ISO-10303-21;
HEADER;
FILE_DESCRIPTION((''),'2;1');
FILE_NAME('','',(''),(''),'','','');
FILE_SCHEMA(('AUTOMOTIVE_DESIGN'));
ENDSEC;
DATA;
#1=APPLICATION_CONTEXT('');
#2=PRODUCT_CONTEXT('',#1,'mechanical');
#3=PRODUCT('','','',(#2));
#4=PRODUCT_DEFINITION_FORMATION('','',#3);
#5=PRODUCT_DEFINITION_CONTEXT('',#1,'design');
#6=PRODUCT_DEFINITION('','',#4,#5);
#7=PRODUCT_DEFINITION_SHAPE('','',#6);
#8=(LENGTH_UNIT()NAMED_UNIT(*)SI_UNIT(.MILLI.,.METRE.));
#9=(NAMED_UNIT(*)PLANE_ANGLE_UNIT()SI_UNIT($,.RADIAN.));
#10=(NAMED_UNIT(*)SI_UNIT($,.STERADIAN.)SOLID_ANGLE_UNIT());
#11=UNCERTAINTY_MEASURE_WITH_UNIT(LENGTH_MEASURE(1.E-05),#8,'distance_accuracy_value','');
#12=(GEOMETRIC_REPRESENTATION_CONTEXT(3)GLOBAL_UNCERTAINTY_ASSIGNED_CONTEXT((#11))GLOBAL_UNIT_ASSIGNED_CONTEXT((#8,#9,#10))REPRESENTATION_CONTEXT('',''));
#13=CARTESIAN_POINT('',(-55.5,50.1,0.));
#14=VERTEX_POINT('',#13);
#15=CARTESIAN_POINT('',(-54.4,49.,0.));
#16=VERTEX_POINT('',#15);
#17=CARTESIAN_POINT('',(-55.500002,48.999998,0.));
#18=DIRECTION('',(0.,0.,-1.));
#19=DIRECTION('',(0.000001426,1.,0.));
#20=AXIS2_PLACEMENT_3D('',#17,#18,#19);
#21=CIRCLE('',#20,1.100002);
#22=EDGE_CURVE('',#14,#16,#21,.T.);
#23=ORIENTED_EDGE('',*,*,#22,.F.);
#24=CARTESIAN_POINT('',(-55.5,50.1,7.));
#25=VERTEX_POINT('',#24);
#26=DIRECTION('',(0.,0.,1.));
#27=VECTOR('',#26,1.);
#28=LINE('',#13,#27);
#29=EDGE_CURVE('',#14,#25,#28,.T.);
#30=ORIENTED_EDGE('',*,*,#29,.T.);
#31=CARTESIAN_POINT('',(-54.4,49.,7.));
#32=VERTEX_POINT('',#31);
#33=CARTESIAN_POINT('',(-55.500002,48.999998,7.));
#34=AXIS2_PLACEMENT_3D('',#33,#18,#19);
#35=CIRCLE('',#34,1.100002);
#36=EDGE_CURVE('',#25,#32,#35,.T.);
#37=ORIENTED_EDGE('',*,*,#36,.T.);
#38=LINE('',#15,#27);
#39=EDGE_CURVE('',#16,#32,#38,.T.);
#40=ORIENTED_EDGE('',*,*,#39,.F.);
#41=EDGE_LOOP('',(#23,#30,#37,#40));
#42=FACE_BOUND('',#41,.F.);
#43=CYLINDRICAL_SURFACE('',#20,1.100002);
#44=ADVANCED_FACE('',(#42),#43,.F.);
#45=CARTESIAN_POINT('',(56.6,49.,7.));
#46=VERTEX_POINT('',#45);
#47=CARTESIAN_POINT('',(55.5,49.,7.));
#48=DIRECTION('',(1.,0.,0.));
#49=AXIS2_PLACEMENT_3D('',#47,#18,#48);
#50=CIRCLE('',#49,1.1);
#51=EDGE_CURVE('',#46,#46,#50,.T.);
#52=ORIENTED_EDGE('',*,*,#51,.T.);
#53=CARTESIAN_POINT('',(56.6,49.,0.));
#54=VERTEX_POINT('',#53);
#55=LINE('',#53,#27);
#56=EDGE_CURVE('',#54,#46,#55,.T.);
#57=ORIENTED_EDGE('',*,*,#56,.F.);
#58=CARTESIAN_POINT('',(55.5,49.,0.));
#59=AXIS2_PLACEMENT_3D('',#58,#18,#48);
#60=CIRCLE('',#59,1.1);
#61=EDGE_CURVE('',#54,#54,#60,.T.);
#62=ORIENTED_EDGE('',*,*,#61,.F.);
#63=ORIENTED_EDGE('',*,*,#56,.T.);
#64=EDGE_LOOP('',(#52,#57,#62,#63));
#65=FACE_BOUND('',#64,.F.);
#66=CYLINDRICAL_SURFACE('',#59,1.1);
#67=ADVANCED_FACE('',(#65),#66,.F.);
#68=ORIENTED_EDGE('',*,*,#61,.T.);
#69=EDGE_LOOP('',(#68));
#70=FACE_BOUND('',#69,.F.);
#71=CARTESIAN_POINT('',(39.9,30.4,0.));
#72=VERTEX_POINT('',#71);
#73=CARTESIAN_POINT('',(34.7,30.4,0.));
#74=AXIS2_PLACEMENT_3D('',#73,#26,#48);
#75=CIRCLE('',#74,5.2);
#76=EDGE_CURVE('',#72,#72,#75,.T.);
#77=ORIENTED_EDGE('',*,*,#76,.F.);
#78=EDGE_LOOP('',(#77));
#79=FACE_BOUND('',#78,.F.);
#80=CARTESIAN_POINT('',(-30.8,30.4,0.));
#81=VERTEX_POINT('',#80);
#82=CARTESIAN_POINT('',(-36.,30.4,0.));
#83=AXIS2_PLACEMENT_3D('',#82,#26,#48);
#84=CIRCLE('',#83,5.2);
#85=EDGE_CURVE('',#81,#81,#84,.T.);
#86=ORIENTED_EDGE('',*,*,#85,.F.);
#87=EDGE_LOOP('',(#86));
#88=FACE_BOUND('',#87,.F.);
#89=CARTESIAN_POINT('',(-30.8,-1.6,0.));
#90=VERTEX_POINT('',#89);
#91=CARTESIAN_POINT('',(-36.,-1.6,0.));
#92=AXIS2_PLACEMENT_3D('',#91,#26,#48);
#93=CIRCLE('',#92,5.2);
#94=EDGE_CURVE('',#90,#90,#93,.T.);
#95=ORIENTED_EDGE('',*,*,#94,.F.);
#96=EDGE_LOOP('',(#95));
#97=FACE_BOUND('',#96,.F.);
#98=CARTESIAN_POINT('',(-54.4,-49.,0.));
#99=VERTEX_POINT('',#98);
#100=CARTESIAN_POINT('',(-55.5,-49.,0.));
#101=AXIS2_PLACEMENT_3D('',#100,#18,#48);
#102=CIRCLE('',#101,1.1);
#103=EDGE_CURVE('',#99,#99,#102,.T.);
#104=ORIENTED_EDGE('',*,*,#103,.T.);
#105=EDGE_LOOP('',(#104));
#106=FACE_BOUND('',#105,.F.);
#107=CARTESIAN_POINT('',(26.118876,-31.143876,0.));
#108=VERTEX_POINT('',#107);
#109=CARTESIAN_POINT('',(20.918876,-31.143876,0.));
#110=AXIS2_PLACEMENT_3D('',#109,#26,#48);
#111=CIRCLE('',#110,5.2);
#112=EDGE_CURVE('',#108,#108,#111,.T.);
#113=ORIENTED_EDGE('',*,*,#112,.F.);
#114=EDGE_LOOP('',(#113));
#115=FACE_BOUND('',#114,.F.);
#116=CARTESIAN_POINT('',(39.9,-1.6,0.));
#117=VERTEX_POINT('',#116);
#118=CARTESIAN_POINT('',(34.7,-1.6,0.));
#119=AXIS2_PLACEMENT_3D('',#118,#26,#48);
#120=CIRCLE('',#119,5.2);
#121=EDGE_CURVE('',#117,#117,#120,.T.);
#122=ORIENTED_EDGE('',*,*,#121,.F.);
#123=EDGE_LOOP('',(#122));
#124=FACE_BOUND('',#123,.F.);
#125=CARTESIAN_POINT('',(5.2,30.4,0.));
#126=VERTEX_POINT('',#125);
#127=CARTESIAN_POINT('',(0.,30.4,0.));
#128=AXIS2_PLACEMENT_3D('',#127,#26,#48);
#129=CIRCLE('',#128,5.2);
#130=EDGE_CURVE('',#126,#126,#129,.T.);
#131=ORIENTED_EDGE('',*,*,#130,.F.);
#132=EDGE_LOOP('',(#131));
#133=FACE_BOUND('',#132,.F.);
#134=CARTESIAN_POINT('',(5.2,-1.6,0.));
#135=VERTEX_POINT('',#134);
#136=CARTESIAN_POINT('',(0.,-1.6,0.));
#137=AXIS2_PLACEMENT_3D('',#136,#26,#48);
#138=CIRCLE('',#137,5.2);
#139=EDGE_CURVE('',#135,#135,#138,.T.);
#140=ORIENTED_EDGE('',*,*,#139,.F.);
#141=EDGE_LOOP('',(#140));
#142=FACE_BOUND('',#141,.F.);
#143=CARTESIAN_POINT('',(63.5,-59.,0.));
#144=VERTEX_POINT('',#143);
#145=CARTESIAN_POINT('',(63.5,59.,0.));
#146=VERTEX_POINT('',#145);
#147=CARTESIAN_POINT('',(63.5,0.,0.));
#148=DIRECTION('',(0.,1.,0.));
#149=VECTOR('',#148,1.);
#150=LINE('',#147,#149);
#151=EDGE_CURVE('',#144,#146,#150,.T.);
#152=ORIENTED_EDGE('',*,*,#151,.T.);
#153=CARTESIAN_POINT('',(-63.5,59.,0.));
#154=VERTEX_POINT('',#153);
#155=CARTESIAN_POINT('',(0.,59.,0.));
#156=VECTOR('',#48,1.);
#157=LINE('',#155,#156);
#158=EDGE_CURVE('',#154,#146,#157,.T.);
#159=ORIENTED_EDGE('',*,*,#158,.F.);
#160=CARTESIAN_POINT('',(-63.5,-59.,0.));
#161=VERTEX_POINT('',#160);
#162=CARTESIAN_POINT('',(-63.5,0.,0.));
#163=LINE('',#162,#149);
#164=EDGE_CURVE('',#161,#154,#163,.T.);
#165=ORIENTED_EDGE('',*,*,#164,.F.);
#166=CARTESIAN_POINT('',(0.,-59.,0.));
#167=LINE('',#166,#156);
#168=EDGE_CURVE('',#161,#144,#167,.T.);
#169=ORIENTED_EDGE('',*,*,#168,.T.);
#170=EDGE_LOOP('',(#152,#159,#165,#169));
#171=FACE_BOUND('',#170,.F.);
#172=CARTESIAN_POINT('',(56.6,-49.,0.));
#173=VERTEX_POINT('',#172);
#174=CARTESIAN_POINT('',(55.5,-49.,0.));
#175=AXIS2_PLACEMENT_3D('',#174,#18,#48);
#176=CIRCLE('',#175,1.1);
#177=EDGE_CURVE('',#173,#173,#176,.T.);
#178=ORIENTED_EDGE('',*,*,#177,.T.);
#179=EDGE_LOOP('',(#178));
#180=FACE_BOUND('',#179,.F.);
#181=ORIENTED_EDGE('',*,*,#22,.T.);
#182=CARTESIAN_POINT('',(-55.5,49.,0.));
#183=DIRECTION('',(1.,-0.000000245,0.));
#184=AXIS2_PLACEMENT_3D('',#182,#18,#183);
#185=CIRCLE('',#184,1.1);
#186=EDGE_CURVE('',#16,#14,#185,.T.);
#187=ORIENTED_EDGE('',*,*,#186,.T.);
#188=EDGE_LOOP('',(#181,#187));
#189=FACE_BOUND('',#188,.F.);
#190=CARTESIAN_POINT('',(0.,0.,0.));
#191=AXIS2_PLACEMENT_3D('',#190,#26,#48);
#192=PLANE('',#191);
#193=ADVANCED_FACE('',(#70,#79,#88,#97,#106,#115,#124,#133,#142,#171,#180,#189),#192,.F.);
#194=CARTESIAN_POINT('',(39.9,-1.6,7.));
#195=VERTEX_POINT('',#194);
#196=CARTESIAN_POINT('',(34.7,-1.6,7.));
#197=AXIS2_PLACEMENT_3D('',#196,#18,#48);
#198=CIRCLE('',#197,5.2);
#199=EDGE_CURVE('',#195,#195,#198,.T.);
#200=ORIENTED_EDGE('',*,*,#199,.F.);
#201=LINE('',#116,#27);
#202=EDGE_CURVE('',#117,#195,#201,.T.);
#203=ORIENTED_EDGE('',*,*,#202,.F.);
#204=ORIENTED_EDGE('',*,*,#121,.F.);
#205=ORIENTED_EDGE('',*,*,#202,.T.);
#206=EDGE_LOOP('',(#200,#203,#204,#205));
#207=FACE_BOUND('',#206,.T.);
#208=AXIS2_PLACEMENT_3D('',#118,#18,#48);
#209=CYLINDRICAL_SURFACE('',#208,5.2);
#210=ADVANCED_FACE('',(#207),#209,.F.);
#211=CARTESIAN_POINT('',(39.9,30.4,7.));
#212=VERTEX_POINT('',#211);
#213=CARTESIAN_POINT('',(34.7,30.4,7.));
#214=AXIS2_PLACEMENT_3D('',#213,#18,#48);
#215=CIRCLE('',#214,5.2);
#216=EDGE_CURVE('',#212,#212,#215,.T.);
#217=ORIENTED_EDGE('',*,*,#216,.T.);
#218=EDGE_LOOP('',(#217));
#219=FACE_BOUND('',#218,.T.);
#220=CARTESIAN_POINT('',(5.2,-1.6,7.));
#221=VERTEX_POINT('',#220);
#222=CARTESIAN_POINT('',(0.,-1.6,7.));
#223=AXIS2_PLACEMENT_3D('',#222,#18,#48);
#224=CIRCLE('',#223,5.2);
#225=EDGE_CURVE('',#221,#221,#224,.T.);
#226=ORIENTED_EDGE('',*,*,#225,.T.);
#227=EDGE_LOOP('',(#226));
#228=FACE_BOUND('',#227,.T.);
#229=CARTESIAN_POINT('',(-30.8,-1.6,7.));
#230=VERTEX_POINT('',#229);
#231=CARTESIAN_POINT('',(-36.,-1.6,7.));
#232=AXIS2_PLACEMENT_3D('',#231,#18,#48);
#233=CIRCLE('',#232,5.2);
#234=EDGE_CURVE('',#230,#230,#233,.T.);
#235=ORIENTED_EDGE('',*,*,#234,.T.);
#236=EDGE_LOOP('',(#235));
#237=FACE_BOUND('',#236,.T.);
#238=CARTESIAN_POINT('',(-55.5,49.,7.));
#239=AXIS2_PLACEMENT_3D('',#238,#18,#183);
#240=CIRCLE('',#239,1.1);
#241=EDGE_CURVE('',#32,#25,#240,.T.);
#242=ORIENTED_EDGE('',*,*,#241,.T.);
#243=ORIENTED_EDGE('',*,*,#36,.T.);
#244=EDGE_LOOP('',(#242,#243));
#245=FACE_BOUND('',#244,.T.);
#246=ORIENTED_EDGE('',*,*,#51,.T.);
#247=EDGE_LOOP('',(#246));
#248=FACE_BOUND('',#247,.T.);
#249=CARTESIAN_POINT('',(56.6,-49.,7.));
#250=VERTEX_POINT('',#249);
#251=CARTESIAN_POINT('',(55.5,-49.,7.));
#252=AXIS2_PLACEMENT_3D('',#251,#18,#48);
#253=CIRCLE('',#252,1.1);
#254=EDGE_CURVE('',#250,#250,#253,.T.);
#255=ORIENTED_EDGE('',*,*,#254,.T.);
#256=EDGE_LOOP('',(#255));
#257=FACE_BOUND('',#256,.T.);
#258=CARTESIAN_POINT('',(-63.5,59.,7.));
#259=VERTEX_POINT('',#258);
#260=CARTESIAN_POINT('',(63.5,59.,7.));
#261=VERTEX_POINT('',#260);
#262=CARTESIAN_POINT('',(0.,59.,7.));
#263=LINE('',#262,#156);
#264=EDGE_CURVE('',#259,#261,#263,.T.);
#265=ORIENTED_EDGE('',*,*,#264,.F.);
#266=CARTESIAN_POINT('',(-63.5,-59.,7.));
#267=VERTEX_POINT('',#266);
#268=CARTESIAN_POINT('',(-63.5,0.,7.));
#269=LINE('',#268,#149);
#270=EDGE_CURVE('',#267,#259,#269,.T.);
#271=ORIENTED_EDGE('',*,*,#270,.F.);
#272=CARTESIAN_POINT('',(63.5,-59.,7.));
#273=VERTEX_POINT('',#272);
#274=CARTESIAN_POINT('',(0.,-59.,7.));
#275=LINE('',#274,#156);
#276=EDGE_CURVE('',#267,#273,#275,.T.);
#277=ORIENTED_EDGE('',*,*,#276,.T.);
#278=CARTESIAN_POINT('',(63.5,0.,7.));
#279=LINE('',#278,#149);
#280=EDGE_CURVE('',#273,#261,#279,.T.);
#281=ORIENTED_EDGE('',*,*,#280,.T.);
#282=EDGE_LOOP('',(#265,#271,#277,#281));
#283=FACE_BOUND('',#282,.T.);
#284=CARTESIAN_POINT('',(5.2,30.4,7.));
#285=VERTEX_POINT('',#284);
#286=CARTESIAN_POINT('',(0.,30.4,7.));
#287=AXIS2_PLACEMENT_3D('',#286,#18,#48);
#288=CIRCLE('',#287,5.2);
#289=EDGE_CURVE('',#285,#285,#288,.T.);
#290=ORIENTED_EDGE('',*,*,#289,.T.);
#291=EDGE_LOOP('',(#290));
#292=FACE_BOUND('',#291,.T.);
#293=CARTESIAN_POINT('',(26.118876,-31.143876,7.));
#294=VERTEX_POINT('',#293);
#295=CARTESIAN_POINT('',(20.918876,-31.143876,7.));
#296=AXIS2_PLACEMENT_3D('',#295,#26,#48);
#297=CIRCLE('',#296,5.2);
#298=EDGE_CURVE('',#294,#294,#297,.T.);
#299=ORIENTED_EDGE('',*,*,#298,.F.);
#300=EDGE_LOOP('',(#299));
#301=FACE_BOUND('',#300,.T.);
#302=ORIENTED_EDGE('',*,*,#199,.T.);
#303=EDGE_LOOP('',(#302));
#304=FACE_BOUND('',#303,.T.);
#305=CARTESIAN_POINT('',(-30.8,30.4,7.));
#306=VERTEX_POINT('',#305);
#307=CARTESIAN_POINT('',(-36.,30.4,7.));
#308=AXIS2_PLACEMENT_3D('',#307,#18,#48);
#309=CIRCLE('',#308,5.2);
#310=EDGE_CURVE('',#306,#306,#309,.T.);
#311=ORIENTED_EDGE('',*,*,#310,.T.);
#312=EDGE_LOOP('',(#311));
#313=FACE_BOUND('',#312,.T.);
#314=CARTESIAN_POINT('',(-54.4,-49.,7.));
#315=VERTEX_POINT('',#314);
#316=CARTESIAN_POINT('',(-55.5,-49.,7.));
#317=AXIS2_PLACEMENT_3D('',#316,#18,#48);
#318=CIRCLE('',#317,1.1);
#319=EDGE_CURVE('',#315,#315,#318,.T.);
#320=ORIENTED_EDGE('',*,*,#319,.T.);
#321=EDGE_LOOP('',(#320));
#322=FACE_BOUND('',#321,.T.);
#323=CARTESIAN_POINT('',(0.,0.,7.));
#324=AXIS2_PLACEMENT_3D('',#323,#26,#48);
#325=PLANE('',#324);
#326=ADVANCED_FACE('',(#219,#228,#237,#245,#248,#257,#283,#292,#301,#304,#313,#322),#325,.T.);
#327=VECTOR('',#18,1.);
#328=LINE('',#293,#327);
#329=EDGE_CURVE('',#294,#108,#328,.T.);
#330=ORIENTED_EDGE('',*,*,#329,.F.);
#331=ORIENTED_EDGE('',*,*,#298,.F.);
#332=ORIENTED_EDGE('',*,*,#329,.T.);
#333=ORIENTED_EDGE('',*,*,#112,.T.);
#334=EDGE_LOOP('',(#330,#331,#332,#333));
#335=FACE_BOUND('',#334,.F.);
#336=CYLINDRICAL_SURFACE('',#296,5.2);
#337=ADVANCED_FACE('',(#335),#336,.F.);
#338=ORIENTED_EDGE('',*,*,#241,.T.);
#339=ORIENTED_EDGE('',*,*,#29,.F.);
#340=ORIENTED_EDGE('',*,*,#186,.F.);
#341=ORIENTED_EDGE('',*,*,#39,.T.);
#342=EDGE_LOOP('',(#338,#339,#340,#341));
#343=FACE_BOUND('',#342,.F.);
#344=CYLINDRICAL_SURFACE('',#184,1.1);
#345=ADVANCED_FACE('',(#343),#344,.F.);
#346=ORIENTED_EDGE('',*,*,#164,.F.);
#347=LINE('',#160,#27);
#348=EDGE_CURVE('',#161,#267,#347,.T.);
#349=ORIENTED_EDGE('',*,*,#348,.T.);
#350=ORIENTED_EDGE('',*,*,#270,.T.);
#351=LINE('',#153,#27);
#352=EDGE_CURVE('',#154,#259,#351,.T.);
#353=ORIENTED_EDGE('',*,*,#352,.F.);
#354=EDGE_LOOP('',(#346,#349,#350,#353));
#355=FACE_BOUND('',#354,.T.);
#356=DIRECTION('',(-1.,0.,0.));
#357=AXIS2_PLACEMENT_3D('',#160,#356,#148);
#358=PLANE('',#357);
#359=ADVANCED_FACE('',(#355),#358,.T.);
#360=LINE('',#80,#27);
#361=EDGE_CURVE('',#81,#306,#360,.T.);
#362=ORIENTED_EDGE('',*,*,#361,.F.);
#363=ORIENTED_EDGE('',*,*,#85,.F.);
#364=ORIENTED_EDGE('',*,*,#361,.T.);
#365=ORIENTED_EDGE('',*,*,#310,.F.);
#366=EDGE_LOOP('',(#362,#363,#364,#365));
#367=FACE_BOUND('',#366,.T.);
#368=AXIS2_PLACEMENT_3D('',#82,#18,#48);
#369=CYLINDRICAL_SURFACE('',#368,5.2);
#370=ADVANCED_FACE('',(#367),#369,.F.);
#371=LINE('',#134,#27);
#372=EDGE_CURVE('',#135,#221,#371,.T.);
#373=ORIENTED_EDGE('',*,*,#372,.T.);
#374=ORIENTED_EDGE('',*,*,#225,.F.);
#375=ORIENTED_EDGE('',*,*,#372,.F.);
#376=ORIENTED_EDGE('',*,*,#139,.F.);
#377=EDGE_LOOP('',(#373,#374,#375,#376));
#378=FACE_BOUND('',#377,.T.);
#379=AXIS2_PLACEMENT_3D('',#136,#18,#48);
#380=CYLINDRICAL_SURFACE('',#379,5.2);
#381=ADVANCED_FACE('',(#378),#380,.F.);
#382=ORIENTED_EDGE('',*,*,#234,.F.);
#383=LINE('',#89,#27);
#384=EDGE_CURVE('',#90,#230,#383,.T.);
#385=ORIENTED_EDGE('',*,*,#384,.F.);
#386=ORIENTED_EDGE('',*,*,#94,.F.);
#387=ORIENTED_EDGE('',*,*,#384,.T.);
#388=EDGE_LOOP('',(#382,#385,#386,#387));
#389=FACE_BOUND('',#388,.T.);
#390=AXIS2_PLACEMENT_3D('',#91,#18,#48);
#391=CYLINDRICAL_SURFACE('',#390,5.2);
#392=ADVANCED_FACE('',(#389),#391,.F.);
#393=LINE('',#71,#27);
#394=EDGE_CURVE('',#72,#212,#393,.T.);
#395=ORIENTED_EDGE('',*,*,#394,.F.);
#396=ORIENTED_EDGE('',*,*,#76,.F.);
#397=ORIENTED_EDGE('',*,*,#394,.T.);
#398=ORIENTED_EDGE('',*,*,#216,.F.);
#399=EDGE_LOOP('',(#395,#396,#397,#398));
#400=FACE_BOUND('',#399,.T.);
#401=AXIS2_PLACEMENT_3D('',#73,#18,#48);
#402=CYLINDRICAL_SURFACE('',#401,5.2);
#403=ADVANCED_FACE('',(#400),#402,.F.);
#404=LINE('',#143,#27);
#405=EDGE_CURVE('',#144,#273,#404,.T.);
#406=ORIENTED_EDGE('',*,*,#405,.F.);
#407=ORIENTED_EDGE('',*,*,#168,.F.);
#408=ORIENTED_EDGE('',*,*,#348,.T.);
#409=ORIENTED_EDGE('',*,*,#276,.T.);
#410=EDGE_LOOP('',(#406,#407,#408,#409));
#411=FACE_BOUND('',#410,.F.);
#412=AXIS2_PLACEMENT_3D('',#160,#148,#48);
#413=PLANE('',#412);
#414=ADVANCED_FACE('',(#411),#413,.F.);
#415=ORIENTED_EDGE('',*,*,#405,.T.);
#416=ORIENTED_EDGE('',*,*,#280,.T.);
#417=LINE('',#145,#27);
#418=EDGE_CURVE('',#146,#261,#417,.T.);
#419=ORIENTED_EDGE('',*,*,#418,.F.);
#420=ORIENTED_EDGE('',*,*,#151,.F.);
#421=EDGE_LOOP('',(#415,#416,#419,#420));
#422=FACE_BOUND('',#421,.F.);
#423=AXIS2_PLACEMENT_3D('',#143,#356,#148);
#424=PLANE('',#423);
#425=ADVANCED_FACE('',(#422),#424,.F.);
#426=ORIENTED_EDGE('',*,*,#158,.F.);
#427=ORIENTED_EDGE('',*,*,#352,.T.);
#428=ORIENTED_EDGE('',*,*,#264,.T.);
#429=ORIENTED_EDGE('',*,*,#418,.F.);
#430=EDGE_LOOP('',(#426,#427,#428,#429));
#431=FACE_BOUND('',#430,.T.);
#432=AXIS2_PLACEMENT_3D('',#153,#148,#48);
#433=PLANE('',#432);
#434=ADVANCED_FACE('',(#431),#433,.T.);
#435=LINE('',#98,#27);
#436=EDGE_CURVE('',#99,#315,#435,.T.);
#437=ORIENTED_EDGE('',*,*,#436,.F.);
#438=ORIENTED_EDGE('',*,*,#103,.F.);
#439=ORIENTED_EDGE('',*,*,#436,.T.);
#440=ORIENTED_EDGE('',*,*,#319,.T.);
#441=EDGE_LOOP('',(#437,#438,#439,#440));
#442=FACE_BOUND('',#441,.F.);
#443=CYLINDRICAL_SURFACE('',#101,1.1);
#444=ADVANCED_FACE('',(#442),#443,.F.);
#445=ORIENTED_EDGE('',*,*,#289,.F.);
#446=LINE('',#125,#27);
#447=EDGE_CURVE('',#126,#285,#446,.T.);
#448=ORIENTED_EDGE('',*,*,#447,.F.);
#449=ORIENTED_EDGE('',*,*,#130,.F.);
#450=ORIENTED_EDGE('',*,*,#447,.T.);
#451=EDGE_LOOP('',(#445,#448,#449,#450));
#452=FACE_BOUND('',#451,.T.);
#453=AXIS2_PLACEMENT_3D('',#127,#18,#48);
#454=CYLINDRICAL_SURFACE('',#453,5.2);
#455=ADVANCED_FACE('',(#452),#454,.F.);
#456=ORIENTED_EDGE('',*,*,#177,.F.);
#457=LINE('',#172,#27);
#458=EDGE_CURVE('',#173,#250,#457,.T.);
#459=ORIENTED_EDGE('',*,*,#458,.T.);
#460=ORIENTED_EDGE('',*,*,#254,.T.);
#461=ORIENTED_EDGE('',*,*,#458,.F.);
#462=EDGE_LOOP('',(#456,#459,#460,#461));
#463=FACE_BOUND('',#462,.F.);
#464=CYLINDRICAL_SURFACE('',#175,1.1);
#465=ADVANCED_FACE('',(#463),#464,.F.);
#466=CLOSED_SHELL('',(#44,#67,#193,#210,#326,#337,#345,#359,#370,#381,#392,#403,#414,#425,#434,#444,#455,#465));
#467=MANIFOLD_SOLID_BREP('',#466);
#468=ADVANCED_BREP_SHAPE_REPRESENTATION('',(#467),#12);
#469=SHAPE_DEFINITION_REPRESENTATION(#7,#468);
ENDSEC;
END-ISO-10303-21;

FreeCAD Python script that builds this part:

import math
import FreeCAD as App
import Part
import Sketcher
from FreeCAD import Vector
Q = App.Units.Quantity


def add_polygon(sketch, points):
    """Adds a closed chain of lines whose ends are joined by coincident constraints."""
    first, n = sketch.GeometryCount, len(points)
    for a, b in zip(points, points[1:] + points[:1]):
        sketch.addGeometry(Part.LineSegment(App.Vector(*a, 0), App.Vector(*b, 0)), False)
    for i in range(n):
        sketch.addConstraint(Sketcher.Constraint("Coincident", first + i, 2, first + (i + 1) % n, 1))

doc = App.newDocument("Part")
body = doc.addObject("PartDesign::Body", "Body")

sketch1 = body.newObject("Sketcher::SketchObject", "Sketch")
sketch1.AttachmentSupport = (doc.getObject("XY_Plane"), [""])
sketch1.MapMode = "FlatFace"
add_polygon(sketch1, [(-64, 59), (-64, -59), (64, -59), (64, 59)])
sketch1.addConstraint([
    Sketcher.Constraint("Vertical", 0),
    Sketcher.Constraint("Horizontal", 1),
    Sketcher.Constraint("Vertical", 2),
    Sketcher.Constraint("Horizontal", 3),
    Sketcher.Constraint("Symmetric", 0, 2, 2, 2, -1, 1),
    Sketcher.Constraint("DistanceX", 1, 1, 1, 2, Q("127 mm")),
    Sketcher.Constraint("DistanceY", 0, 2, 0, 1, Q("118 mm")),
])
pad1 = body.newObject("PartDesign::Pad", "Pad")
pad1.Profile = sketch1
pad1.Length = 7

sketch2 = body.newObject("Sketcher::SketchObject", "Sketch001")
sketch2.AttachmentSupport = (doc.getObject("XY_Plane"), [""])
sketch2.MapMode = "FlatFace"
sketch2.addGeometry([
    Part.ArcOfCircle(Part.Circle(Vector(-55.5, 49, 0), Vector(0, 0, 1), 1.1), math.radians(0), math.radians(90)),
    Part.ArcOfCircle(Part.Circle(Vector(-55.5, 49, 0), Vector(0, 0, 1), 1.1), math.radians(90), math.radians(360)),
    Part.Circle(Vector(55.5, 49, 0), Vector(0, 0, 1), 1.1),
    Part.Circle(Vector(-55.5, -49, 0), Vector(0, 0, 1), 1.1),
    Part.Circle(Vector(55.5, -49, 0), Vector(0, 0, 1), 1.1),
], False)
sketch2.addConstraint([
    Sketcher.Constraint("Tangent", 0, 1, 1, 2),
    Sketcher.Constraint("Coincident", 1, 1, 0, 2),
    Sketcher.Constraint("Equal", 1, 2),
    Sketcher.Constraint("Equal", 2, 3),
    Sketcher.Constraint("Equal", 3, 4),
    Sketcher.Constraint("Symmetric", 2, 3, 3, 3, -1, 1),
    Sketcher.Constraint("Symmetric", 0, 3, 4, 3, -1, 1),
    Sketcher.Constraint("Symmetric", 0, 3, 2, 3, -2),
    Sketcher.Constraint("Horizontal", 2, 3, 0, 1),
    Sketcher.Constraint("Vertical", 3, 3, 1, 1),
    Sketcher.Constraint("Diameter", 2, Q("2.2 mm")),
    Sketcher.Constraint("DistanceY", -1, 1, 0, 3, Q("48.999998 mm")),
    Sketcher.Constraint("DistanceX", 1, 3, 2, 3, Q("111 mm")),
])
pocket1 = body.newObject("PartDesign::Pocket", "Pocket")
pocket1.Profile = sketch2
pocket1.Length = 25
pocket1.Reversed = True

sketch3 = body.newObject("Sketcher::SketchObject", "Sketch002")
sketch3.AttachmentSupport = (doc.getObject("XY_Plane"), [""])
sketch3.MapMode = "FlatFace"
sketch3.addGeometry([
    Part.Circle(Vector(-36, 30, 0), Vector(0, 0, 1), 5),
    Part.Circle(Vector(-36, -2, 0), Vector(0, 0, 1), 5),
    Part.Circle(Vector(0, -2, 0), Vector(0, 0, 1), 5),
    Part.Circle(Vector(35, -2, 0), Vector(0, 0, 1), 5),
    Part.Circle(Vector(35, 30, 0), Vector(0, 0, 1), 5),
    Part.Circle(Vector(0, 30, 0), Vector(0, 0, 1), 5),
], False)
sketch3.addConstraint([
    Sketcher.Constraint("Equal", 0, 1),
    Sketcher.Constraint("Equal", 1, 2),
    Sketcher.Constraint("Equal", 2, 3),
    Sketcher.Constraint("Equal", 3, 4),
    Sketcher.Constraint("Equal", 4, 5),
    Sketcher.Constraint("PointOnObject", 2, 3, -2),
    Sketcher.Constraint("PointOnObject", 5, 3, -2),
    Sketcher.Constraint("Horizontal", 1, 3, 2, 3),
    Sketcher.Constraint("Horizontal", 2, 3, 3, 3),
    Sketcher.Constraint("Horizontal", 0, 3, 4, 3),
    Sketcher.Constraint("Horizontal", 4, 3, 5, 3),
    Sketcher.Constraint("Vertical", 0, 3, 1, 3),
    Sketcher.Constraint("Vertical", 3, 3, 4, 3),
    Sketcher.Constraint("Diameter", 0, Q("10.4 mm")),
    Sketcher.Constraint("DistanceX", 0, 3, -1, 1, Q("36 mm")),
    Sketcher.Constraint("DistanceY", 1, 3, 0, 3, Q("32 mm")),
    Sketcher.Constraint("DistanceY", -1, 1, 0, 3, Q("30.4 mm")),
    Sketcher.Constraint("DistanceX", -1, 1, 3, 3, Q("34.7 mm")),
])
pocket2 = body.newObject("PartDesign::Pocket", "Pocket001")
pocket2.Profile = sketch3
pocket2.Type = "ThroughAll"
pocket2.Reversed = True

sketch4 = body.newObject("Sketcher::SketchObject", "Sketch003")
sketch4.AttachmentSupport = (doc.getObject("XY_Plane"), [""])
sketch4.MapMode = "FlatFace"
sketch4.AttachmentOffset = App.Placement(Vector(0, 0, 7), App.Rotation())
sketch4.addGeometry(Part.Circle(Vector(21, -31, 0), Vector(0, 0, 1), 5), False)
sketch4.addConstraint([
    Sketcher.Constraint("Diameter", 0, Q("10.4 mm")),
    Sketcher.Constraint("DistanceX", -1, 1, 0, 3, Q("20.918876 mm")),
    Sketcher.Constraint("DistanceY", 0, 3, -1, 1, Q("31.143876 mm")),
])
pocket3 = body.newObject("PartDesign::Pocket", "Pocket002")
pocket3.Profile = sketch4
pocket3.Type = "ThroughAll"

doc.recompute()
